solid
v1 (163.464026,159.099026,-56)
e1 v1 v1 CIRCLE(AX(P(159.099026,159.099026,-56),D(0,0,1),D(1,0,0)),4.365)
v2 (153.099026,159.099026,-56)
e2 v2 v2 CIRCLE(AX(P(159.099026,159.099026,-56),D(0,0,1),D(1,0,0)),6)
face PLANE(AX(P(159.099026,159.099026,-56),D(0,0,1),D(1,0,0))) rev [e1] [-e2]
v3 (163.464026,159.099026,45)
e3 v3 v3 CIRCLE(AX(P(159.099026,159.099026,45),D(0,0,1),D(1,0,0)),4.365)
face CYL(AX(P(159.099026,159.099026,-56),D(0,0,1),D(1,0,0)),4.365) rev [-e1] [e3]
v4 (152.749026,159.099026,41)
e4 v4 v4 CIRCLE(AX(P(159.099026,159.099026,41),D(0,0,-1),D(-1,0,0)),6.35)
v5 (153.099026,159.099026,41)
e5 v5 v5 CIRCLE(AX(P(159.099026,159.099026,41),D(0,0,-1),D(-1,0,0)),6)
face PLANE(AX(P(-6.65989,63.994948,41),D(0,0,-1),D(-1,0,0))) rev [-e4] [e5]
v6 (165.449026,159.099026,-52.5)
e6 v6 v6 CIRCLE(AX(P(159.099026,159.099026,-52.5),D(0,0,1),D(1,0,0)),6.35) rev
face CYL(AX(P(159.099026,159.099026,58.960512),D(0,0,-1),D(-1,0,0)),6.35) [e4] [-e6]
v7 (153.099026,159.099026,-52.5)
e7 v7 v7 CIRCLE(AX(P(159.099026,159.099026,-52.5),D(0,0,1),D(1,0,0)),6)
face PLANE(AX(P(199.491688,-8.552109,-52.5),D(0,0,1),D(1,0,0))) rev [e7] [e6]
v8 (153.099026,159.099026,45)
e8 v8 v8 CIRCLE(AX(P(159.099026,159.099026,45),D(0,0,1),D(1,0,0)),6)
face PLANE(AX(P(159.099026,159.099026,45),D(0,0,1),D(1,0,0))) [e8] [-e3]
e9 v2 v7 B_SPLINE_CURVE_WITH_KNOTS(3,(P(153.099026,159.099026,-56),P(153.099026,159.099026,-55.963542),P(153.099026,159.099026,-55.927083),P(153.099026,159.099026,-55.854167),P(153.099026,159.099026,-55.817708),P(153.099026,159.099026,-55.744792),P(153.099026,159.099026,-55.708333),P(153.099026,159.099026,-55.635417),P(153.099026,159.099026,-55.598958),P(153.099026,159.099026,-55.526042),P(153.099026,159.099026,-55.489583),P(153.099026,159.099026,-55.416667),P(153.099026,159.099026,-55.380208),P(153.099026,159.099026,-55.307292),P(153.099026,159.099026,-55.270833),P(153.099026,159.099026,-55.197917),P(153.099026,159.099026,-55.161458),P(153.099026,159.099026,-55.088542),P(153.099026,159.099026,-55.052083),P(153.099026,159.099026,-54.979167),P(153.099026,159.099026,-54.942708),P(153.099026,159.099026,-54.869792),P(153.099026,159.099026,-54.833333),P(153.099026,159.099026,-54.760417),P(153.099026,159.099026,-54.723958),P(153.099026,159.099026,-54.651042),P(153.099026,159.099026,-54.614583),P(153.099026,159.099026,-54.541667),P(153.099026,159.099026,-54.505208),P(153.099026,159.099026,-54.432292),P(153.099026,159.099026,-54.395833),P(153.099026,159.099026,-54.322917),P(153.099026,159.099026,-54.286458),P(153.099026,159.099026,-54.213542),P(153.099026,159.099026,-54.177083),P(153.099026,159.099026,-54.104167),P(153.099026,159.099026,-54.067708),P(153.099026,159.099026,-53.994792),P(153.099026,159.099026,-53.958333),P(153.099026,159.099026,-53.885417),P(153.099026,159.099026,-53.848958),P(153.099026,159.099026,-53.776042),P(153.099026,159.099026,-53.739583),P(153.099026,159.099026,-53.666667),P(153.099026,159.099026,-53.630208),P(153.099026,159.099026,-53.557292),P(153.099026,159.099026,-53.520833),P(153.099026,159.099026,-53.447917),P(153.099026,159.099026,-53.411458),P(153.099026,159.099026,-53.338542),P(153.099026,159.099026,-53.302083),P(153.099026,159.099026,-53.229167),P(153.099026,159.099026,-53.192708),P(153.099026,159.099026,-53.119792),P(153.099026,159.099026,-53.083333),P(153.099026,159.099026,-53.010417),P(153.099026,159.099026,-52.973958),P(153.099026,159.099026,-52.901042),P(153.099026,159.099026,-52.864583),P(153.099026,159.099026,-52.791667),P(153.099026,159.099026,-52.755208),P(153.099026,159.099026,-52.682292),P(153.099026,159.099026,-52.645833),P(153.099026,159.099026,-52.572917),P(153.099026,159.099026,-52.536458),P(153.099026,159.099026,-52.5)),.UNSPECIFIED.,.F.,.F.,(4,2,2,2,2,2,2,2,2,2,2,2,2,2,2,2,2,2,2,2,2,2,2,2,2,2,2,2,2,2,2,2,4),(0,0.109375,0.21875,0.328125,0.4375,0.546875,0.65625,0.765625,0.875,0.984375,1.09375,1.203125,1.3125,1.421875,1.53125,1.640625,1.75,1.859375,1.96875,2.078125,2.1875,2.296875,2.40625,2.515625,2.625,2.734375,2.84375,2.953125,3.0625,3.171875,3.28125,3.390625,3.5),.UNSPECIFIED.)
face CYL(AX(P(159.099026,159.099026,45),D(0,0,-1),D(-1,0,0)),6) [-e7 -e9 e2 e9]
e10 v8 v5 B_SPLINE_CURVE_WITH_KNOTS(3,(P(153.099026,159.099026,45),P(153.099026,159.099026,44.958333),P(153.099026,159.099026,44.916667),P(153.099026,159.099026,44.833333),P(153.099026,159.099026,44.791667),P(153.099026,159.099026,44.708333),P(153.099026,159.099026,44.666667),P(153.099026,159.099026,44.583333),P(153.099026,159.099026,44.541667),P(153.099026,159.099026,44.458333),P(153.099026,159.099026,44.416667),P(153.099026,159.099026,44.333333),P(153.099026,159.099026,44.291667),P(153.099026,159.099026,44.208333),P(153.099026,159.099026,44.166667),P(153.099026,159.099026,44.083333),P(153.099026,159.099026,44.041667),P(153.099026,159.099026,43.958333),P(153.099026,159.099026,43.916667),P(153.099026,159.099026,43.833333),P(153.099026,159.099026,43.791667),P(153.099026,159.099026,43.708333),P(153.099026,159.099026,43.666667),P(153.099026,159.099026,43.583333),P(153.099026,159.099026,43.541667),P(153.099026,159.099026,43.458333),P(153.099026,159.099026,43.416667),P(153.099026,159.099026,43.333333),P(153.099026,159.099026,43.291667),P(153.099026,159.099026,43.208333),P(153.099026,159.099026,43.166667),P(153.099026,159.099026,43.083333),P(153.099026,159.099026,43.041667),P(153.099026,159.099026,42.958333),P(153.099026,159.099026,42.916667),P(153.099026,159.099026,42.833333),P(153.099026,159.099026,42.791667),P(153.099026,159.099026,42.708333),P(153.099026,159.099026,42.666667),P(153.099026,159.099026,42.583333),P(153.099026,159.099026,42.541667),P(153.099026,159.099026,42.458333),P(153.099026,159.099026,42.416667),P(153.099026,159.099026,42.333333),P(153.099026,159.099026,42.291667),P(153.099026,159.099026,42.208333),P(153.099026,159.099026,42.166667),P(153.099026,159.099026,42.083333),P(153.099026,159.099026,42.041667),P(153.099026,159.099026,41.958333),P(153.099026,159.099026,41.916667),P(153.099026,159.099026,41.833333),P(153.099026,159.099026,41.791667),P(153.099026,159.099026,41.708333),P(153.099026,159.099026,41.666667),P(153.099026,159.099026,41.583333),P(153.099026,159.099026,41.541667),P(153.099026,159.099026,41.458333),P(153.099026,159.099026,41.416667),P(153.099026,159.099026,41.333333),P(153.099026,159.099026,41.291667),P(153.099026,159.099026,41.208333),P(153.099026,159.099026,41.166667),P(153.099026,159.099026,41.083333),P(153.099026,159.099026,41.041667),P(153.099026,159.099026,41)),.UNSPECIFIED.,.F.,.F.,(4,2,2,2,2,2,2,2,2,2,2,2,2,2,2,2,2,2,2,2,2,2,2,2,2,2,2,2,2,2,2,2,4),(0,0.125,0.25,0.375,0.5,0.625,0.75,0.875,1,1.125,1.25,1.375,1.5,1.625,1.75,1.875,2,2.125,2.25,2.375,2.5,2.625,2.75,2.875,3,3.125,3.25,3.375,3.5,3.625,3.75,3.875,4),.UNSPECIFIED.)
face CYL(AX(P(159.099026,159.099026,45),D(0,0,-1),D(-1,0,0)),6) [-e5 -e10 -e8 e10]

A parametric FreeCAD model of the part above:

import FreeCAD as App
import Part
import Sketcher
from FreeCAD import Vector
Q = App.Units.Quantity

doc = App.newDocument("Part")
body = doc.addObject("PartDesign::Body", "Body")

sketch1 = body.newObject("Sketcher::SketchObject", "Sketch")
sketch1.AttachmentSupport = (doc.getObject("XY_Plane"), [""])
sketch1.MapMode = "FlatFace"
sketch1.addGeometry(Part.Circle(Vector(159, 159, 0), Vector(0, 0, 1), 6), False)
sketch1.addConstraint([
    Sketcher.Constraint("Diameter", 0, Q("12 mm")),
    Sketcher.Constraint("DistanceX", -1, 1, 0, 3, Q("159.099026 mm")),
    Sketcher.Constraint("DistanceY", -1, 1, 0, 3, Q("159.099026 mm")),
])
pad1 = body.newObject("PartDesign::Pad", "Pad")
pad1.Profile = sketch1
pad1.Type = "TwoLengths"
pad1.Length = 45
pad1.Length2 = 56

sketch2 = body.newObject("Sketcher::SketchObject", "Sketch001")
sketch2.AttachmentSupport = (doc.getObject("XY_Plane"), [""])
sketch2.MapMode = "FlatFace"
sketch2.addGeometry(Part.Circle(Vector(159, 159, 0), Vector(0, 0, 1), 6), False)
sketch2.addConstraint([
    Sketcher.Constraint("Diameter", 0, Q("12.7 mm")),
    Sketcher.Constraint("DistanceX", -1, 1, 0, 3, Q("159.099026 mm")),
    Sketcher.Constraint("DistanceY", -1, 1, 0, 3, Q("159.099026 mm")),
])
pad2 = body.newObject("PartDesign::Pad", "Pad001")
pad2.Profile = sketch2
pad2.Type = "TwoLengths"
pad2.Length = 41
pad2.Length2 = 52.5

sketch3 = body.newObject("Sketcher::SketchObject", "Sketch002")
sketch3.AttachmentSupport = (doc.getObject("XY_Plane"), [""])
sketch3.MapMode = "FlatFace"
sketch3.addGeometry(Part.Circle(Vector(159.1, 159.1, 0), Vector(0, 0, 1), 4.4), False)
sketch3.addConstraint([
    Sketcher.Constraint("Diameter", 0, Q("8.73 mm")),
    Sketcher.Constraint("DistanceX", -1, 1, 0, 3, Q("159.099026 mm")),
    Sketcher.Constraint("DistanceY", -1, 1, 0, 3, Q("159.099026 mm")),
])
pocket1 = body.newObject("PartDesign::Pocket", "Pocket")
pocket1.Profile = sketch3
pocket1.Type = "ThroughAll"
pocket1.Midplane = True

doc.recompute()
